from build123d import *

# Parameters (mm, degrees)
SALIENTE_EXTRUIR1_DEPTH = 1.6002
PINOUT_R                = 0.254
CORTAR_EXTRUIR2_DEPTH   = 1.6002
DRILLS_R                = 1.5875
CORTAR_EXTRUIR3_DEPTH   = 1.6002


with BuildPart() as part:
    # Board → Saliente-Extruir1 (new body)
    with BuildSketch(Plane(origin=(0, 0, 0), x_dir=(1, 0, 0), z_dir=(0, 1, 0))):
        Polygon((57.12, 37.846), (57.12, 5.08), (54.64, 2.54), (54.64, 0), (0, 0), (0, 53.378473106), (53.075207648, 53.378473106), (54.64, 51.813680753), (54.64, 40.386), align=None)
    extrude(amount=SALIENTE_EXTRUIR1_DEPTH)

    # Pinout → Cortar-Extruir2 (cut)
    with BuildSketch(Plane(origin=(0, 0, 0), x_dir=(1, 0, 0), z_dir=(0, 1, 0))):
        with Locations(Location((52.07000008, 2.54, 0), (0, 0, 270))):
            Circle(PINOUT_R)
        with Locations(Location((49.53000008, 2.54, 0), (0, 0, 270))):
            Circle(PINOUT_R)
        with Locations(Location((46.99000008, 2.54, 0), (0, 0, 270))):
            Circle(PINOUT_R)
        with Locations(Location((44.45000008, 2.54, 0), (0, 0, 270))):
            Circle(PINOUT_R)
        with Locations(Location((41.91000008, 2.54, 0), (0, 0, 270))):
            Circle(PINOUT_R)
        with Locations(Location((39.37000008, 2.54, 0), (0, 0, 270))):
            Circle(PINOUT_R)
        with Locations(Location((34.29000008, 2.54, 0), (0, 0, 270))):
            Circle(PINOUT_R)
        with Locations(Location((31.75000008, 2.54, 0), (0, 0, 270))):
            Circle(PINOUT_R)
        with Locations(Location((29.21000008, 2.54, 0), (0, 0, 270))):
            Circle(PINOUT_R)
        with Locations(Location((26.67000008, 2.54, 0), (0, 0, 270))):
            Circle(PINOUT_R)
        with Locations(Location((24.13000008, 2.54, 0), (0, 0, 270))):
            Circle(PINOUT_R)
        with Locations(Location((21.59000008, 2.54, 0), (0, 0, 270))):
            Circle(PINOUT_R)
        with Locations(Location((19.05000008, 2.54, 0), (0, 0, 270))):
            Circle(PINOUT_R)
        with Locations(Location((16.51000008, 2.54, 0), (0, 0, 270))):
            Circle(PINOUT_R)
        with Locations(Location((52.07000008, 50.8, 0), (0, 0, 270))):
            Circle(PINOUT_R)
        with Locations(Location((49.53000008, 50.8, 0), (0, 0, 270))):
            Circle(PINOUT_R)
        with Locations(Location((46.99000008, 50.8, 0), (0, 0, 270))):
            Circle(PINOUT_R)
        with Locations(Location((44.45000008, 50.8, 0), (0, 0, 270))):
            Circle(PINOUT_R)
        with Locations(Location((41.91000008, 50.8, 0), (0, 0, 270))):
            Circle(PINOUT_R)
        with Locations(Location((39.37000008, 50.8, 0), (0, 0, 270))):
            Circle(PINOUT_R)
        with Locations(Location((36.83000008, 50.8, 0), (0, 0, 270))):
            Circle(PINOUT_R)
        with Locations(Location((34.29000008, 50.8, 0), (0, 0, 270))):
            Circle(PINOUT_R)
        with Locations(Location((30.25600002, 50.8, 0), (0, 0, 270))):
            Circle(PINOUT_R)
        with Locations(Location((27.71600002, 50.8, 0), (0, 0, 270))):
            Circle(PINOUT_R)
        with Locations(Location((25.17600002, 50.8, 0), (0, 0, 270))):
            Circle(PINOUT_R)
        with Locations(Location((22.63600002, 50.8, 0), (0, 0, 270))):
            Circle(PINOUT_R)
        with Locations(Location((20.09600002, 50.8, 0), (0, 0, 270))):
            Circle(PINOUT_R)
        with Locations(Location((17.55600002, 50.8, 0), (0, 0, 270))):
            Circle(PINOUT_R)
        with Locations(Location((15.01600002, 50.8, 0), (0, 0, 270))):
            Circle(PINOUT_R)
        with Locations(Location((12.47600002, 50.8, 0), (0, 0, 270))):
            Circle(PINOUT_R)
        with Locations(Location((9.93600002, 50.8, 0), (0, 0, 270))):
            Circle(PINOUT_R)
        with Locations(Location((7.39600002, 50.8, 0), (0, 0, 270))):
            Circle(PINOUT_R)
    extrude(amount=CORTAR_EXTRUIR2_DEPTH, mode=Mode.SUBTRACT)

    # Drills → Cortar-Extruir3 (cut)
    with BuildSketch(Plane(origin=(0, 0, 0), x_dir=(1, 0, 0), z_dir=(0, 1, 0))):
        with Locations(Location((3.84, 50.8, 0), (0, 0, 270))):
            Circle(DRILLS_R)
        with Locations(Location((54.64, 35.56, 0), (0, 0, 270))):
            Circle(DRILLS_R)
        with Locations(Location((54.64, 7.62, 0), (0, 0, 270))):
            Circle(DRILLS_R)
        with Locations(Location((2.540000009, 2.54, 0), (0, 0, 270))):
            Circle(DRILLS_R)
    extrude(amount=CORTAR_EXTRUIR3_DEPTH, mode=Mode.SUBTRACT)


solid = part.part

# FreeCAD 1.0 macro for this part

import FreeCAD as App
import Part
import Sketcher
from FreeCAD import Vector
Q = App.Units.Quantity


def add_polygon(sketch, points):
    """Adds a closed chain of lines whose ends are joined by coincident constraints."""
    first, n = sketch.GeometryCount, len(points)
    for a, b in zip(points, points[1:] + points[:1]):
        sketch.addGeometry(Part.LineSegment(App.Vector(*a, 0), App.Vector(*b, 0)), False)
    for i in range(n):
        sketch.addConstraint(Sketcher.Constraint("Coincident", first + i, 2, first + (i + 1) % n, 1))

doc = App.newDocument("Part")
body = doc.addObject("PartDesign::Body", "Body")

sketch1 = body.newObject("Sketcher::SketchObject", "Sketch")
sketch1.AttachmentSupport = (doc.getObject("XZ_Plane"), [""])
sketch1.MapMode = "FlatFace"
add_polygon(sketch1, [(57.1, -5.1), (57.1, -37.8), (54.6, -40.4), (54.6, -51.8), (53.1, -53.4), (0, -53.4), (0, 0), (54.6, 0), (54.6, -2.5)])
sketch1.addConstraint([
    Sketcher.Constraint("Vertical", 0),
    Sketcher.Constraint("Vertical", 2),
    Sketcher.Constraint("Horizontal", 4),
    Sketcher.Constraint("Vertical", 5),
    Sketcher.Constraint("Horizontal", 6),
    Sketcher.Constraint("Vertical", 7),
    Sketcher.Constraint("Coincident", 5, 2, -1, 1),
    Sketcher.Constraint("Vertical", 2, 2, 6, 2),
    Sketcher.Constraint("Equal", 1, 8),
    Sketcher.Constraint("DistanceY", 7, 2, 7, 1, Q("0.1 in")),
    Sketcher.Constraint("Angle", 3, Q("-135 deg")),
    Sketcher.Constraint("DistanceY", 0, 2, 0, 1, Q("1.29 in")),
    Sketcher.Constraint("DistanceY", 8, 2, -1, 1, Q("0.2 in")),
    Sketcher.Constraint("DistanceX", 6, 1, 6, 2, Q("54.64 mm")),
    Sketcher.Constraint("DistanceY", 2, 2, 2, 1, Q("11.427681 mm")),
    Sketcher.Constraint("DistanceX", -1, 1, 0, 2, Q("57.12 mm")),
    Sketcher.Constraint("Distance", 3, Q("2.212951 mm")),
])
pad1 = body.newObject("PartDesign::Pad", "Pad")
pad1.Profile = sketch1
pad1.Length = Q("0.063 in")
pad1.Reversed = True

sketch2 = body.newObject("Sketcher::SketchObject", "Sketch001")
sketch2.AttachmentSupport = (doc.getObject("XZ_Plane"), [""])
sketch2.MapMode = "FlatFace"
sketch2.addGeometry([
    Part.Circle(Vector(52.07, -2.54, 0), Vector(0, 0, 1), 0.25),
    Part.Circle(Vector(49.53, -2.54, 0), Vector(0, 0, 1), 0.25),
    Part.Circle(Vector(46.99, -2.54, 0), Vector(0, 0, 1), 0.25),
    Part.Circle(Vector(44.45, -2.54, 0), Vector(0, 0, 1), 0.25),
    Part.Circle(Vector(41.91, -2.54, 0), Vector(0, 0, 1), 0.25),
    Part.Circle(Vector(39.37, -2.54, 0), Vector(0, 0, 1), 0.25),
    Part.Circle(Vector(34.29, -2.54, 0), Vector(0, 0, 1), 0.25),
    Part.Circle(Vector(31.75, -2.54, 0), Vector(0, 0, 1), 0.25),
    Part.Circle(Vector(29.21, -2.54, 0), Vector(0, 0, 1), 0.25),
    Part.Circle(Vector(26.67, -2.54, 0), Vector(0, 0, 1), 0.25),
    Part.Circle(Vector(24.13, -2.54, 0), Vector(0, 0, 1), 0.25),
    Part.Circle(Vector(21.59, -2.54, 0), Vector(0, 0, 1), 0.25),
    Part.Circle(Vector(19.05, -2.54, 0), Vector(0, 0, 1), 0.25),
    Part.Circle(Vector(16.51, -2.54, 0), Vector(0, 0, 1), 0.25),
    Part.Circle(Vector(52.07, -50.8, 0), Vector(0, 0, 1), 0.25),
    Part.Circle(Vector(49.53, -50.8, 0), Vector(0, 0, 1), 0.25),
    Part.Circle(Vector(46.99, -50.8, 0), Vector(0, 0, 1), 0.25),
    Part.Circle(Vector(44.45, -50.8, 0), Vector(0, 0, 1), 0.25),
    Part.Circle(Vector(41.91, -50.8, 0), Vector(0, 0, 1), 0.25),
    Part.Circle(Vector(39.37, -50.8, 0), Vector(0, 0, 1), 0.25),
    Part.Circle(Vector(36.83, -50.8, 0), Vector(0, 0, 1), 0.25),
    Part.Circle(Vector(34.29, -50.8, 0), Vector(0, 0, 1), 0.25),
    Part.Circle(Vector(30.26, -50.8, 0), Vector(0, 0, 1), 0.25),
    Part.Circle(Vector(27.72, -50.8, 0), Vector(0, 0, 1), 0.25),
    Part.Circle(Vector(25.18, -50.8, 0), Vector(0, 0, 1), 0.25),
    Part.Circle(Vector(22.64, -50.8, 0), Vector(0, 0, 1), 0.25),
    Part.Circle(Vector(20.1, -50.8, 0), Vector(0, 0, 1), 0.25),
    Part.Circle(Vector(17.56, -50.8, 0), Vector(0, 0, 1), 0.25),
    Part.Circle(Vector(15.02, -50.8, 0), Vector(0, 0, 1), 0.25),
    Part.Circle(Vector(12.48, -50.8, 0), Vector(0, 0, 1), 0.25),
    Part.Circle(Vector(9.94, -50.8, 0), Vector(0, 0, 1), 0.25),
    Part.Circle(Vector(7.4, -50.8, 0), Vector(0, 0, 1), 0.25),
], False)
sketch2.addConstraint([
    Sketcher.Constraint("Equal", 0, 1),
    Sketcher.Constraint("Equal", 1, 2),
    Sketcher.Constraint("Equal", 2, 3),
    Sketcher.Constraint("Equal", 3, 4),
    Sketcher.Constraint("Equal", 4, 5),
    Sketcher.Constraint("Equal", 5, 6),
    Sketcher.Constraint("Equal", 6, 7),
    Sketcher.Constraint("Equal", 7, 8),
    Sketcher.Constraint("Equal", 8, 9),
    Sketcher.Constraint("Equal", 9, 10),
    Sketcher.Constraint("Equal", 10, 11),
    Sketcher.Constraint("Equal", 11, 12),
    Sketcher.Constraint("Equal", 12, 13),
    Sketcher.Constraint("Equal", 13, 14),
    Sketcher.Constraint("Equal", 14, 15),
    Sketcher.Constraint("Equal", 15, 16),
    Sketcher.Constraint("Equal", 16, 17),
    Sketcher.Constraint("Equal", 17, 18),
    Sketcher.Constraint("Equal", 18, 19),
    Sketcher.Constraint("Equal", 19, 20),
    Sketcher.Constraint("Equal", 20, 21),
    Sketcher.Constraint("Equal", 21, 22),
    Sketcher.Constraint("Equal", 22, 23),
    Sketcher.Constraint("Equal", 23, 24),
    Sketcher.Constraint("Equal", 24, 25),
    Sketcher.Constraint("Equal", 25, 26),
    Sketcher.Constraint("Equal", 26, 27),
    Sketcher.Constraint("Equal", 27, 28),
    Sketcher.Constraint("Equal", 28, 29),
    Sketcher.Constraint("Equal", 29, 30),
    Sketcher.Constraint("Equal", 30, 31),
    Sketcher.Constraint("Horizontal", 0, 3, 1, 3),
    Sketcher.Constraint("Horizontal", 1, 3, 2, 3),
    Sketcher.Constraint("Horizontal", 2, 3, 3, 3),
    Sketcher.Constraint("Horizontal", 3, 3, 4, 3),
    Sketcher.Constraint("Horizontal", 4, 3, 5, 3),
    Sketcher.Constraint("Horizontal", 5, 3, 6, 3),
    Sketcher.Constraint("Horizontal", 6, 3, 7, 3),
    Sketcher.Constraint("Horizontal", 7, 3, 8, 3),
    Sketcher.Constraint("Horizontal", 8, 3, 9, 3),
    Sketcher.Constraint("Horizontal", 9, 3, 10, 3),
    Sketcher.Constraint("Horizontal", 10, 3, 11, 3),
    Sketcher.Constraint("Horizontal", 11, 3, 12, 3),
    Sketcher.Constraint("Horizontal", 12, 3, 13, 3),
    Sketcher.Constraint("Horizontal", 14, 3, 15, 3),
    Sketcher.Constraint("Horizontal", 15, 3, 16, 3),
    Sketcher.Constraint("Horizontal", 16, 3, 17, 3),
    Sketcher.Constraint("Horizontal", 17, 3, 18, 3),
    Sketcher.Constraint("Horizontal", 18, 3, 19, 3),
    Sketcher.Constraint("Horizontal", 19, 3, 20, 3),
    Sketcher.Constraint("Horizontal", 20, 3, 21, 3),
    Sketcher.Constraint("Horizontal", 21, 3, 22, 3),
    Sketcher.Constraint("Horizontal", 22, 3, 23, 3),
    Sketcher.Constraint("Horizontal", 23, 3, 24, 3),
    Sketcher.Constraint("Horizontal", 24, 3, 25, 3),
    Sketcher.Constraint("Horizontal", 25, 3, 26, 3),
    Sketcher.Constraint("Horizontal", 26, 3, 27, 3),
    Sketcher.Constraint("Horizontal", 27, 3, 28, 3),
    Sketcher.Constraint("Horizontal", 28, 3, 29, 3),
    Sketcher.Constraint("Horizontal", 29, 3, 30, 3),
    Sketcher.Constraint("Horizontal", 30, 3, 31, 3),
    Sketcher.Constraint("Vertical", 0, 3, 14, 3),
    Sketcher.Constraint("Vertical", 1, 3, 15, 3),
    Sketcher.Constraint("Vertical", 2, 3, 16, 3),
    Sketcher.Constraint("Vertical", 3, 3, 17, 3),
    Sketcher.Constraint("Vertical", 4, 3, 18, 3),
    Sketcher.Constraint("Vertical", 5, 3, 19, 3),
    Sketcher.Constraint("Vertical", 6, 3, 21, 3),
    Sketcher.Constraint("Diameter", 0, Q("0.02 in")),
    Sketcher.Constraint("DistanceY", 14, 3, -1, 1, Q("2 in")),
    Sketcher.Constraint("DistanceY", 0, 3, -1, 1, Q("0.1 in")),
    Sketcher.Constraint("DistanceX", 1, 3, 0, 3, Q("0.1 in")),
    Sketcher.Constraint("DistanceX", 2, 3, 1, 3, Q("0.1 in")),
    Sketcher.Constraint("DistanceX", 3, 3, 2, 3, Q("0.1 in")),
    Sketcher.Constraint("DistanceX", 4, 3, 3, 3, Q("0.1 in")),
    Sketcher.Constraint("DistanceX", 5, 3, 4, 3, Q("0.1 in")),
    Sketcher.Constraint("DistanceX", 6, 3, 5, 3, Q("0.2 in")),
    Sketcher.Constraint("DistanceX", 7, 3, 6, 3, Q("0.1 in")),
    Sketcher.Constraint("DistanceX", 8, 3, 7, 3, Q("0.1 in")),
    Sketcher.Constraint("DistanceX", 9, 3, 8, 3, Q("0.1 in")),
    Sketcher.Constraint("DistanceX", 10, 3, 9, 3, Q("0.1 in")),
    Sketcher.Constraint("DistanceX", 11, 3, 10, 3, Q("0.1 in")),
    Sketcher.Constraint("DistanceX", 12, 3, 11, 3, Q("0.1 in")),
    Sketcher.Constraint("DistanceX", 13, 3, 12, 3, Q("0.1 in")),
    Sketcher.Constraint("DistanceX", 20, 3, 19, 3, Q("0.1 in")),
    Sketcher.Constraint("DistanceX", 23, 3, 22, 3, Q("0.1 in")),
    Sketcher.Constraint("DistanceX", 24, 3, 23, 3, Q("0.1 in")),
    Sketcher.Constraint("DistanceX", 25, 3, 24, 3, Q("0.1 in")),
    Sketcher.Constraint("DistanceX", 26, 3, 25, 3, Q("0.1 in")),
    Sketcher.Constraint("DistanceX", 27, 3, 26, 3, Q("0.1 in")),
    Sketcher.Constraint("DistanceX", 28, 3, 27, 3, Q("0.1 in")),
    Sketcher.Constraint("DistanceX", 29, 3, 28, 3, Q("0.1 in")),
    Sketcher.Constraint("DistanceX", 30, 3, 29, 3, Q("0.1 in")),
    Sketcher.Constraint("DistanceX", 31, 3, 30, 3, Q("0.1 in")),
    Sketcher.Constraint("DistanceX", -1, 1, 0, 3, Q("2.05 in")),
    Sketcher.Constraint("DistanceX", -1, 1, 22, 3, Q("30.256 mm")),
])
pocket1 = body.newObject("PartDesign::Pocket", "Pocket")
pocket1.Profile = sketch2
pocket1.Length = Q("0.063 in")

sketch3 = body.newObject("Sketcher::SketchObject", "Sketch002")
sketch3.AttachmentSupport = (doc.getObject("XZ_Plane"), [""])
sketch3.MapMode = "FlatFace"
sketch3.addGeometry([
    Part.Circle(Vector(3.8, -50.8, 0), Vector(0, 0, 1), 1.6),
    Part.Circle(Vector(54.6, -35.6, 0), Vector(0, 0, 1), 1.6),
    Part.Circle(Vector(54.6, -7.6, 0), Vector(0, 0, 1), 1.6),
    Part.Circle(Vector(2.5, -2.5, 0), Vector(0, 0, 1), 1.6),
], False)
sketch3.addConstraint([
    Sketcher.Constraint("Equal", 0, 1),
    Sketcher.Constraint("Equal", 1, 2),
    Sketcher.Constraint("Equal", 2, 3),
    Sketcher.Constraint("Vertical", 1, 3, 2, 3),
    Sketcher.Constraint("Diameter", 0, Q("0.125 in")),
    Sketcher.Constraint("DistanceY", 0, 3, -1, 1, Q("2 in")),
    Sketcher.Constraint("DistanceX", 0, 3, 1, 3, Q("2 in")),
    Sketcher.Constraint("DistanceY", 1, 3, -1, 1, Q("1.4 in")),
    Sketcher.Constraint("DistanceY", 2, 3, -1, 1, Q("0.3 in")),
    Sketcher.Constraint("DistanceX", -1, 1, 3, 3, Q("0.1 in")),
    Sketcher.Constraint("DistanceY", 3, 3, -1, 1, Q("0.1 in")),
    Sketcher.Constraint("DistanceX", -1, 1, 0, 3, Q("3.84 mm")),
])
pocket2 = body.newObject("PartDesign::Pocket", "Pocket001")
pocket2.Profile = sketch3
pocket2.Length = Q("0.063 in")

doc.recompute()
